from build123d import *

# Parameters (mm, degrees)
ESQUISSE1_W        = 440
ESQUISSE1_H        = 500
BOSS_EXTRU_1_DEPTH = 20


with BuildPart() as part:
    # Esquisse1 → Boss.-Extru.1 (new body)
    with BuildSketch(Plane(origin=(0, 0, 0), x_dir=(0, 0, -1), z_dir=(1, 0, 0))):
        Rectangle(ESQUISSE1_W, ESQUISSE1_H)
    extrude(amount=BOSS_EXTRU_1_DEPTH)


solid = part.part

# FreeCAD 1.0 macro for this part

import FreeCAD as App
import Part
import Sketcher

V = App.Vector
Q = App.Units.Quantity

doc = App.newDocument("Part")
body = doc.addObject("PartDesign::Body", "Body")

# Sketch on YZ plane
sketch1 = body.newObject("Sketcher::SketchObject", "Sketch")
sketch1.AttachmentSupport = (doc.getObject("YZ_Plane"), [""])
sketch1.MapMode = "FlatFace"
sketch1.addGeometry([
    Part.LineSegment(V(250, 220, 0), V(-250, 220, 0)),
    Part.LineSegment(V(-250, 220, 0), V(-250, -220, 0)),
    Part.LineSegment(V(-250, -220, 0), V(250, -220, 0)),
    Part.LineSegment(V(250, -220, 0), V(250, 220, 0)),
], False)
sketch1.addConstraint([
    Sketcher.Constraint("Coincident", 0, 2, 1, 1),
    Sketcher.Constraint("Coincident", 1, 2, 2, 1),
    Sketcher.Constraint("Coincident", 2, 2, 3, 1),
    Sketcher.Constraint("Coincident", 3, 2, 0, 1),
    Sketcher.Constraint("Horizontal", 0),
    Sketcher.Constraint("Vertical", 1),
    Sketcher.Constraint("Horizontal", 2),
    Sketcher.Constraint("Vertical", 3),
    Sketcher.Constraint("Symmetric", 0, 2, 2, 2, -1, 1),
    Sketcher.Constraint("DistanceX", 0, 2, 0, 1, Q("500 mm")),
    Sketcher.Constraint("DistanceY", 1, 2, 1, 1, Q("440 mm")),
])
pad1 = body.newObject("PartDesign::Pad", "Pad")
pad1.Profile = sketch1
pad1.Length = 20

doc.recompute()
